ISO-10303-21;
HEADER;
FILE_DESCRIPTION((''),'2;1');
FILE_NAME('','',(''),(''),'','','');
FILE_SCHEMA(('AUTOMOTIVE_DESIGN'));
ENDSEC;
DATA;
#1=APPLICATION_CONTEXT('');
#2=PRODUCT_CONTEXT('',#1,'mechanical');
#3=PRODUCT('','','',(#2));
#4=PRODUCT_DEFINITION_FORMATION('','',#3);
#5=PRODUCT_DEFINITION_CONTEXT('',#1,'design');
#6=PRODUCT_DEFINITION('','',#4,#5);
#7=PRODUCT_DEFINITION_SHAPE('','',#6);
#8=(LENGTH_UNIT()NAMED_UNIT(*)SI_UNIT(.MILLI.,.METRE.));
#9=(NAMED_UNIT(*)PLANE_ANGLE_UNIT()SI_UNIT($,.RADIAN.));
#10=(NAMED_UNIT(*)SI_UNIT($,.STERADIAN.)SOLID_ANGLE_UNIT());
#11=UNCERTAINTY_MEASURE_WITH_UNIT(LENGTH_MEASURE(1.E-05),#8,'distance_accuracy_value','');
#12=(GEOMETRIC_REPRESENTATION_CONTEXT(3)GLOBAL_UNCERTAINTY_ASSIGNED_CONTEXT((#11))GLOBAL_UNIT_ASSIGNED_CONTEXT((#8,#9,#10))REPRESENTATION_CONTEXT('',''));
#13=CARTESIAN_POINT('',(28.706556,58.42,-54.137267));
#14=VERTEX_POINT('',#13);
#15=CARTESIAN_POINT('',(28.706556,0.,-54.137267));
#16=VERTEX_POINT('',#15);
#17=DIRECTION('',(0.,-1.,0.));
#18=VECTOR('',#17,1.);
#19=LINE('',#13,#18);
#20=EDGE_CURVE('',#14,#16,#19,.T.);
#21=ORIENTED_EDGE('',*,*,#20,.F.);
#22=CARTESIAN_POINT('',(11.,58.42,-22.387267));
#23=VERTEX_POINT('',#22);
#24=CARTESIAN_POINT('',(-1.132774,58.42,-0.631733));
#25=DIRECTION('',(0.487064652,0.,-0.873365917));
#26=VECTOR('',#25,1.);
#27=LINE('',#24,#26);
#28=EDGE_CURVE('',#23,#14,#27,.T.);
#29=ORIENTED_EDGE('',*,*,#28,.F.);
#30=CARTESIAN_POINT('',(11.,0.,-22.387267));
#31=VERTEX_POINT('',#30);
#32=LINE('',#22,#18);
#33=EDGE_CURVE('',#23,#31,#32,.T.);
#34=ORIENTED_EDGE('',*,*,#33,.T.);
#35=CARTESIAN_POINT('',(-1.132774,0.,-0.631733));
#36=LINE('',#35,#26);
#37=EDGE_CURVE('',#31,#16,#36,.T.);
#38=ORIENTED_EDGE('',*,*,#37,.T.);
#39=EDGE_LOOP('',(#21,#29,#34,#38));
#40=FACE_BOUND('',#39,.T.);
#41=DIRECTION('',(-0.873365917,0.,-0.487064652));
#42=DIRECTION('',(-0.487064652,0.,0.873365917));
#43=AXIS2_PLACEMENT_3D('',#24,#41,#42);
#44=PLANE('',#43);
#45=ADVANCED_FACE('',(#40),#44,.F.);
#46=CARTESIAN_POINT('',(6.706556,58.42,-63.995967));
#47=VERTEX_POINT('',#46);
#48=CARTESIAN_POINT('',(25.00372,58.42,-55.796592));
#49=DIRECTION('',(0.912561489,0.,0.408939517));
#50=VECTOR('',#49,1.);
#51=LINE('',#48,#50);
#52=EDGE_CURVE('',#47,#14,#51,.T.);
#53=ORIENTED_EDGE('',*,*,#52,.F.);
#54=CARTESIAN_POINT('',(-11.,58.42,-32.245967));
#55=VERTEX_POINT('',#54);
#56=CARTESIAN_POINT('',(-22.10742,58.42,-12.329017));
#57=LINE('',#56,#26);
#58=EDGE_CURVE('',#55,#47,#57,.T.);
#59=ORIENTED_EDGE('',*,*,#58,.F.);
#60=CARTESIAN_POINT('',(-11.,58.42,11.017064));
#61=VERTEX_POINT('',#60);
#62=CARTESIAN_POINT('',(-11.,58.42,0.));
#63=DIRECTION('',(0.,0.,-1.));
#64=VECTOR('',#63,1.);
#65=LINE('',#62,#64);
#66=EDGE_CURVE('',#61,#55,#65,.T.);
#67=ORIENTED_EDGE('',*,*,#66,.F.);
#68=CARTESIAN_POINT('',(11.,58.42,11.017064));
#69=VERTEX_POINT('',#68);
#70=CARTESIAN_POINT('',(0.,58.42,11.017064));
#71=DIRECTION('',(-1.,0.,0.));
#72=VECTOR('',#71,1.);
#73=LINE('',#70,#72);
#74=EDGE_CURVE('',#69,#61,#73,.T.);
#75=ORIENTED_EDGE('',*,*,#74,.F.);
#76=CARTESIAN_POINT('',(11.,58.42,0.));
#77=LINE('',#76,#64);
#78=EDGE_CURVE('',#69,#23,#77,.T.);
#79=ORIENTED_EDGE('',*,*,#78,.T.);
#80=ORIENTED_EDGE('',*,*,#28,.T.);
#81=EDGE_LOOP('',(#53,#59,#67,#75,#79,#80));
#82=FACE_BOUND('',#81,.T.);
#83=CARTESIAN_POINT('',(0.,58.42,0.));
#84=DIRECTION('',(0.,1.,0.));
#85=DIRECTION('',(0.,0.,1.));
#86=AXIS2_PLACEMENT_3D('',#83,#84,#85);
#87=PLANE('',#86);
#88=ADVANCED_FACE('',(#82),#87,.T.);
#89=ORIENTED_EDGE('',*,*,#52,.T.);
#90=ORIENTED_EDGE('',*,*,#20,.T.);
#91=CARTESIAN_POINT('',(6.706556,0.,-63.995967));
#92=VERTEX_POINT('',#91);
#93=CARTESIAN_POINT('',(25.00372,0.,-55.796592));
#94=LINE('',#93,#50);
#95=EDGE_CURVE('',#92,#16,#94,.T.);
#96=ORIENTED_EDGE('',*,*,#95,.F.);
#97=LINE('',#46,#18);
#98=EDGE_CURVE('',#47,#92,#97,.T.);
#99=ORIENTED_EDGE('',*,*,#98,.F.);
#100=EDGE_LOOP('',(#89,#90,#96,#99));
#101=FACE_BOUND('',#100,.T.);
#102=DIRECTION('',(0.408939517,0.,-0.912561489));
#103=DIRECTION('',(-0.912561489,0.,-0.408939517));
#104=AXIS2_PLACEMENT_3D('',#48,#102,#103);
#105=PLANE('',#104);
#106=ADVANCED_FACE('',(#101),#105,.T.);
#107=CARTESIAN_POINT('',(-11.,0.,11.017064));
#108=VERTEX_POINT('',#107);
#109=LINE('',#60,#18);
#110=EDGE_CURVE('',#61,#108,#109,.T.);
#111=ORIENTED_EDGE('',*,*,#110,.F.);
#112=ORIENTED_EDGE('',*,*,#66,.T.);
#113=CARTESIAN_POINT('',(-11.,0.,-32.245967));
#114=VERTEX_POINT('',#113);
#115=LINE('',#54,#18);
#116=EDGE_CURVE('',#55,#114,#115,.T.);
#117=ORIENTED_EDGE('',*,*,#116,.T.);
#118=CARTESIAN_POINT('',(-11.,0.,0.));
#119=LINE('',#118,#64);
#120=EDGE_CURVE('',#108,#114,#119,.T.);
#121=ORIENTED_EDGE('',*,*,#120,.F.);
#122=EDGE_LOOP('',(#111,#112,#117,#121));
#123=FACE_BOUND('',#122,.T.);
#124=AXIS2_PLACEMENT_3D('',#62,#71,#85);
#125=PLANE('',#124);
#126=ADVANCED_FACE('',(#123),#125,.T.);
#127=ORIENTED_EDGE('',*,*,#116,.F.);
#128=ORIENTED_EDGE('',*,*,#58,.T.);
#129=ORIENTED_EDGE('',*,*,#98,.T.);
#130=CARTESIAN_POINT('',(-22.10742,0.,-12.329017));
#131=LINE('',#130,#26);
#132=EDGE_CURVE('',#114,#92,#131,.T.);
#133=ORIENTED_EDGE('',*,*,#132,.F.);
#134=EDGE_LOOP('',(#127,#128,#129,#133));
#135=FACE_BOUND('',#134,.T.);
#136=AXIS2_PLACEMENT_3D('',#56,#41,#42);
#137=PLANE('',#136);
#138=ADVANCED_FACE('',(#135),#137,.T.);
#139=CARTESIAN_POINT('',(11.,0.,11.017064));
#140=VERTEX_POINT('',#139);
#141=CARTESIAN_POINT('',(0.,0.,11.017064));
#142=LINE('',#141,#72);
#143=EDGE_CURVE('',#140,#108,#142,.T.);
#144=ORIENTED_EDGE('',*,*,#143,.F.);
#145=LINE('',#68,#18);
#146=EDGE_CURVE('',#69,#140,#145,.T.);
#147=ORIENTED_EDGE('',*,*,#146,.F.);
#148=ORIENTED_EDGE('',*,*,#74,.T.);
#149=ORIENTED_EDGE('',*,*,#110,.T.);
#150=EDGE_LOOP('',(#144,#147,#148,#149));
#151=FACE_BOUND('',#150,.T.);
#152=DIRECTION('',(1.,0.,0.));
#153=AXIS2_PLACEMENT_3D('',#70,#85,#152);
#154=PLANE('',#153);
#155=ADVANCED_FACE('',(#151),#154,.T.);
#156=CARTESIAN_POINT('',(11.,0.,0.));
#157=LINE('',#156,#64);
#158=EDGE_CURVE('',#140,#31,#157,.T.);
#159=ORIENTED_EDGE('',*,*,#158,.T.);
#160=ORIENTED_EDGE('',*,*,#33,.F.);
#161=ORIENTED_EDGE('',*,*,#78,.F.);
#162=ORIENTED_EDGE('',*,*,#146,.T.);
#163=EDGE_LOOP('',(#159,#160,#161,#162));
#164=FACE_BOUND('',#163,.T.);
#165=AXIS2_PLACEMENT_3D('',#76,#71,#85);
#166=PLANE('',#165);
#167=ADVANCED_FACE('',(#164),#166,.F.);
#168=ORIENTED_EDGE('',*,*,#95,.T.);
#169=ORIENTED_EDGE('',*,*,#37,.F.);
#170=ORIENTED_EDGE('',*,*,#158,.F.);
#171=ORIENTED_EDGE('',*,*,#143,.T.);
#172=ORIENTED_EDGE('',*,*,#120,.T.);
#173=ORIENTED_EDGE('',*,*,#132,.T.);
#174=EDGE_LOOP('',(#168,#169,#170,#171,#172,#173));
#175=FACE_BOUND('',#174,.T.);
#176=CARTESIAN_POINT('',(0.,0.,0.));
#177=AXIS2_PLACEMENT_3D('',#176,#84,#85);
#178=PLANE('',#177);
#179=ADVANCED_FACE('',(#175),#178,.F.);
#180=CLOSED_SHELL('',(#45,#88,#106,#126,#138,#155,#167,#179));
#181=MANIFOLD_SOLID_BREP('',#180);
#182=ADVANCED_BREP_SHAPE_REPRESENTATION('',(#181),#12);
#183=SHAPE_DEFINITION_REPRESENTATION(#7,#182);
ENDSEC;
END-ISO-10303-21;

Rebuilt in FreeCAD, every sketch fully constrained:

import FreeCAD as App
import Part
import Sketcher

V = App.Vector

doc = App.newDocument("Part")
body = doc.addObject("PartDesign::Body", "Body")

# Sketch on XZ plane
sketch1 = body.newObject("Sketcher::SketchObject", "Sketch")
sketch1.AttachmentSupport = (doc.getObject("XZ_Plane"), [""])
sketch1.MapMode = "FlatFace"
sketch1.addGeometry(Part.LineSegment(V(11, 11, 0), V(11, -22, 0)), False)
sketch1.addGeometry(Part.LineSegment(V(11, -22, 0), V(29, -54, 0)), False)
sketch1.addGeometry(Part.LineSegment(V(29, -54, 0), V(7, -64, 0)), False)
sketch1.addGeometry(Part.LineSegment(V(7, -64, 0), V(-11, -32, 0)), False)
sketch1.addGeometry(Part.LineSegment(V(-11, -32, 0), V(-11, 11, 0)), False)
sketch1.addGeometry(Part.LineSegment(V(-11, 11, 0), V(11, 11, 0)), False)
sketch1.addConstraint(Sketcher.Constraint("Coincident", 0, 2, 1, 1))
sketch1.addConstraint(Sketcher.Constraint("Coincident", 1, 2, 2, 1))
sketch1.addConstraint(Sketcher.Constraint("Coincident", 2, 2, 3, 1))
sketch1.addConstraint(Sketcher.Constraint("Coincident", 3, 2, 4, 1))
sketch1.addConstraint(Sketcher.Constraint("Coincident", 4, 2, 5, 1))
sketch1.addConstraint(Sketcher.Constraint("Coincident", 5, 2, 0, 1))
sketch1.addConstraint(Sketcher.Constraint("Vertical", 0))
sketch1.addConstraint(Sketcher.Constraint("Vertical", 4))
sketch1.addConstraint(Sketcher.Constraint("Horizontal", 5))
sketch1.addConstraint(Sketcher.Constraint("Parallel", 1, 3))
sketch1.addConstraint(Sketcher.Constraint("Equal", 1, 3))
sketch1.addConstraint(Sketcher.Constraint("DistanceX", 5, 1, 5, 2, 22.0))
sketch1.addConstraint(Sketcher.Constraint("DistanceX", -1, 1, 0, 2, 11.0))
sketch1.addConstraint(Sketcher.Constraint("DistanceY", 1, 2, 0, 2, 31.75))
sketch1.addConstraint(Sketcher.Constraint("DistanceY", 0, 2, 0, 1, 33.404332))
sketch1.addConstraint(Sketcher.Constraint("DistanceY", 4, 1, 4, 2, 43.263031))
sketch1.addConstraint(Sketcher.Constraint("Distance", 1, 36.353605))
sketch1.addConstraint(Sketcher.Constraint("DistanceY", 0, 2, -1, 1, 22.387267))
pad1 = body.newObject("PartDesign::Pad", "Pad")
pad1.Profile = sketch1
pad1.Length = 58.42
pad1.Reversed = True

doc.recompute()
